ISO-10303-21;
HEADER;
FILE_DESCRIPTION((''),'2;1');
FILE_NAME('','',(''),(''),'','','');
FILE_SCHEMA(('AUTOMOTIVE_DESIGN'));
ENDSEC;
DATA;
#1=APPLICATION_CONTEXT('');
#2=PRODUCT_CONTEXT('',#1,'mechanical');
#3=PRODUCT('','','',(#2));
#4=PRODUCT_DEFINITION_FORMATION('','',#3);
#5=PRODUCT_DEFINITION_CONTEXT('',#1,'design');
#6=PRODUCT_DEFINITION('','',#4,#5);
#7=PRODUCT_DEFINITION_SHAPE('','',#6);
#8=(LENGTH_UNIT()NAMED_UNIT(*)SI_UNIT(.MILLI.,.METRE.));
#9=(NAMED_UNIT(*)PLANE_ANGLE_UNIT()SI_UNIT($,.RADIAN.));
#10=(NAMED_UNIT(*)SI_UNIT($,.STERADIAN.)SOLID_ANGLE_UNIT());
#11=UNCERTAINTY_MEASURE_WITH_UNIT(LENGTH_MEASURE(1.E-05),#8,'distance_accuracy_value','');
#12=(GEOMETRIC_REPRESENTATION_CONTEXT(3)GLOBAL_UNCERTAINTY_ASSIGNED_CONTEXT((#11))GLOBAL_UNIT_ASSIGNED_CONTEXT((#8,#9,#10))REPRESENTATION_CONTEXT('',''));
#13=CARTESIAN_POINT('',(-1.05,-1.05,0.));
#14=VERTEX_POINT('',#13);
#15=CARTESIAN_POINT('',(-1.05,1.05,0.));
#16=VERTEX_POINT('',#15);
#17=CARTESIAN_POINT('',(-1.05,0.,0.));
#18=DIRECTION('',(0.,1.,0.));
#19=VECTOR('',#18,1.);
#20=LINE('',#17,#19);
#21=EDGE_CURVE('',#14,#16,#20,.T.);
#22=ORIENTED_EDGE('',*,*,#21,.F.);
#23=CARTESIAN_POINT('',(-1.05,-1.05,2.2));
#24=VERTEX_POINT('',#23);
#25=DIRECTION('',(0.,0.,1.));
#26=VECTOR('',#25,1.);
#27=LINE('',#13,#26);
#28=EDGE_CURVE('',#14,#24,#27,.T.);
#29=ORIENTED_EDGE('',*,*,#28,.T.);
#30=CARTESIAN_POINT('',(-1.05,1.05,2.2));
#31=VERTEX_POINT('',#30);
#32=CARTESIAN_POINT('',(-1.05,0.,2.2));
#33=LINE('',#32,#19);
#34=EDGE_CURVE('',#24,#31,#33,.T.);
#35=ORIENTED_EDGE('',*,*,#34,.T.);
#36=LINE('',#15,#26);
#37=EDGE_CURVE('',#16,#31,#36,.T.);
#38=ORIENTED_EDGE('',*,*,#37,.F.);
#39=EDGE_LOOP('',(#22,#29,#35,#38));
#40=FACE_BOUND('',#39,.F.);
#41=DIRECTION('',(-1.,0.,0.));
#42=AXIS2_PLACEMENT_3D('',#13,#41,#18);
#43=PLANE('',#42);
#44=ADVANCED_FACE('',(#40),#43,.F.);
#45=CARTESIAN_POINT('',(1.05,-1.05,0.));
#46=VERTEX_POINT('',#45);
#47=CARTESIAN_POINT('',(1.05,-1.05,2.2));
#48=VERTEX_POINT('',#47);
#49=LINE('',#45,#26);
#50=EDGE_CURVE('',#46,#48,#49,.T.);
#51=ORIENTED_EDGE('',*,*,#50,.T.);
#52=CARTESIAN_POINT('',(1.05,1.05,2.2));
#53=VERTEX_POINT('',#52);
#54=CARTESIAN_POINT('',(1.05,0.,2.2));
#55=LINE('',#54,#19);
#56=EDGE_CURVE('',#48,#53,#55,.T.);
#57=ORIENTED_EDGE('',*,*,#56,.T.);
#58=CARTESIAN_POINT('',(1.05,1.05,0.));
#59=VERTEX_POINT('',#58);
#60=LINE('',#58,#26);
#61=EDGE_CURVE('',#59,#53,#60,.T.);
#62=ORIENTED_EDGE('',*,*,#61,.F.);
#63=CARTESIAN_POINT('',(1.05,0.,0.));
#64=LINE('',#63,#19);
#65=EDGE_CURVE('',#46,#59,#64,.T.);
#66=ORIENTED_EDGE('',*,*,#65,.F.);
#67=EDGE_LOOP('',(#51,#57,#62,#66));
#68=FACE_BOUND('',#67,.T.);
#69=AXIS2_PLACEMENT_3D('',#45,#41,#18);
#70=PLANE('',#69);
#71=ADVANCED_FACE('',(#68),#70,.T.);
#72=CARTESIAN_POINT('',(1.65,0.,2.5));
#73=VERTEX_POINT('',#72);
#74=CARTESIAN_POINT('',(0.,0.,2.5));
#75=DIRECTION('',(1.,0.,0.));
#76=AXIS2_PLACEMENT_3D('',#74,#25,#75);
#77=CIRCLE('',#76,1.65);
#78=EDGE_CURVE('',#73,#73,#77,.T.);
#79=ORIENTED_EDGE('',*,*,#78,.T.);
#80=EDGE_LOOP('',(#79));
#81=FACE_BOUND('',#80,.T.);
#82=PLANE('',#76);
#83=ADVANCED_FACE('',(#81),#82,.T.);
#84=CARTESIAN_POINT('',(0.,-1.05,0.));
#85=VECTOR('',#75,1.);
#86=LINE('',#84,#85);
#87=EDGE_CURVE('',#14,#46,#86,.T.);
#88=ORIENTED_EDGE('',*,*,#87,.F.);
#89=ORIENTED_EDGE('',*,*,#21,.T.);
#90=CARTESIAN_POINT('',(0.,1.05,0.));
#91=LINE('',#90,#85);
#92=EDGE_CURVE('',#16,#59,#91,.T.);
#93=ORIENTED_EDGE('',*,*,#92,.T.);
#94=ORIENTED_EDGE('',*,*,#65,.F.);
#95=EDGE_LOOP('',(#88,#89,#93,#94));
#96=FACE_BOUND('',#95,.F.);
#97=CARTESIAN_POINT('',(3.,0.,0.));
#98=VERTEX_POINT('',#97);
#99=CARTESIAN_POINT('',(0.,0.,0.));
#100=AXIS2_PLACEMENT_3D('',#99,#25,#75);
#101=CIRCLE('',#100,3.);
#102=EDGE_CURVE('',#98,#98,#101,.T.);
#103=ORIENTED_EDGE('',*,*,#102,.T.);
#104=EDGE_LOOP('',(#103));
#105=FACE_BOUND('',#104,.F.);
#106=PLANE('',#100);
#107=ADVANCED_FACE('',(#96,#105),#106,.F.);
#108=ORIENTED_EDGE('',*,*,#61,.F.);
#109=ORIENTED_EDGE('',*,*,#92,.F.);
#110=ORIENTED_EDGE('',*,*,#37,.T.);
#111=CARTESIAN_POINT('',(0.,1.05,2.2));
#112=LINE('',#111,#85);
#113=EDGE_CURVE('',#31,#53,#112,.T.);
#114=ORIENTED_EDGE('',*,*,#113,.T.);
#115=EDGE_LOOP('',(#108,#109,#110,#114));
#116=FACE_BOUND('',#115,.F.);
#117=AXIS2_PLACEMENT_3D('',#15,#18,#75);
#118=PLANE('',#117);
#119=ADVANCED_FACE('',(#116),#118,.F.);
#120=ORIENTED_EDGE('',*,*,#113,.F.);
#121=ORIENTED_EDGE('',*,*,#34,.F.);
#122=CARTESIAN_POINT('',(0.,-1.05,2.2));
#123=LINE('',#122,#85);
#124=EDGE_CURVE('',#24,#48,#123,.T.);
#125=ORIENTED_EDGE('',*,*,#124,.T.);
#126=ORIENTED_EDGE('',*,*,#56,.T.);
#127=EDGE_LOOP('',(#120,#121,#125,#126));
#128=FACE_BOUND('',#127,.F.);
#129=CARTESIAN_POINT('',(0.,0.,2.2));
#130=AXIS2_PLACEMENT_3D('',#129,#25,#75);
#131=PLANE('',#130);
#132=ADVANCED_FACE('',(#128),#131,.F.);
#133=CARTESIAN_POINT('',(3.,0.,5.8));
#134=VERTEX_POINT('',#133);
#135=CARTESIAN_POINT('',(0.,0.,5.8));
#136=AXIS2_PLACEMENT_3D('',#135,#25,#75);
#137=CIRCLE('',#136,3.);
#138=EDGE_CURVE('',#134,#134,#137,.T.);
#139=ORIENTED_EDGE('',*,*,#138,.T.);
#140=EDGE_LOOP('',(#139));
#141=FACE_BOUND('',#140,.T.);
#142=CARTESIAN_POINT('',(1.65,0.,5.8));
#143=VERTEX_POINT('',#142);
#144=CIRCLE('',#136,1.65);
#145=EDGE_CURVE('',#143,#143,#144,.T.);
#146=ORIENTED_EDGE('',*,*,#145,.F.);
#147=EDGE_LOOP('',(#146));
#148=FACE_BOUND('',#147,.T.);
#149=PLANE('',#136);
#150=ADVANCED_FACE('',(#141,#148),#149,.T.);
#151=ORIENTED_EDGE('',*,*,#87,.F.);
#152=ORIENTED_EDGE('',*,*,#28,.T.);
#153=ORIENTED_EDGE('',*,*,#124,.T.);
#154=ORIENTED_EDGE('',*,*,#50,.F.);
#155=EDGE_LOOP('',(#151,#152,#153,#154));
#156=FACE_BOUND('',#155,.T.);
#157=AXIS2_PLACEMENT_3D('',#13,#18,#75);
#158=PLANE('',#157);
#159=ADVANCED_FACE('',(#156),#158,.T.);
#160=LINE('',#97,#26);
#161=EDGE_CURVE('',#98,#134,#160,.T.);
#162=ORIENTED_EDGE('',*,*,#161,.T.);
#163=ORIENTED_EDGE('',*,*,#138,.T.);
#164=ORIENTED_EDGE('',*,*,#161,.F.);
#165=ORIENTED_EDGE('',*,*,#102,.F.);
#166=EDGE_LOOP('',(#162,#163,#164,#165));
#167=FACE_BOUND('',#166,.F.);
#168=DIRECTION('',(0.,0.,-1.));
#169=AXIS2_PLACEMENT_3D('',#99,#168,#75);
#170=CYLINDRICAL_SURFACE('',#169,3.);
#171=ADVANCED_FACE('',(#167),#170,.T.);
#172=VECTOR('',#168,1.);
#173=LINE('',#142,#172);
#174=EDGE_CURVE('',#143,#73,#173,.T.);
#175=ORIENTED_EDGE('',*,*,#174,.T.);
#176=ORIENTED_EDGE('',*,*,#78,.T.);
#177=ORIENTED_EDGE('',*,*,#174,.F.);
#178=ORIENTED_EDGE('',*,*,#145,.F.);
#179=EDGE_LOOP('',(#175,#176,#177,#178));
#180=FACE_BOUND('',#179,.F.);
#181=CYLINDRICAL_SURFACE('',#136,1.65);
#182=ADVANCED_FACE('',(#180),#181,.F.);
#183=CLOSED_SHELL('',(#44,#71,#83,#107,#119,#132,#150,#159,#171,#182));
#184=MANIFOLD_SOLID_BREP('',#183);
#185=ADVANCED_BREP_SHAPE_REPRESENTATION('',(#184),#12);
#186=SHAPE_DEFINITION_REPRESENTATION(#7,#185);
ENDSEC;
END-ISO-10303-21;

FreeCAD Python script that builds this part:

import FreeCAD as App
import Part
import Sketcher
from FreeCAD import Vector


def add_polygon(sketch, points):
    """Adds a closed chain of lines whose ends are joined by coincident constraints."""
    first, n = sketch.GeometryCount, len(points)
    for a, b in zip(points, points[1:] + points[:1]):
        sketch.addGeometry(Part.LineSegment(App.Vector(*a, 0), App.Vector(*b, 0)), False)
    for i in range(n):
        sketch.addConstraint(Sketcher.Constraint("Coincident", first + i, 2, first + (i + 1) % n, 1))

doc = App.newDocument("Part")
body = doc.addObject("PartDesign::Body", "Body")

# Sketch on XY plane
sketch1 = body.newObject("Sketcher::SketchObject", "Sketch")
sketch1.AttachmentSupport = (doc.getObject("XY_Plane"), [""])
sketch1.MapMode = "FlatFace"
sketch1.addGeometry(Part.Circle(Vector(0, 0, 0), Vector(0, 0, 1), 3), False)
sketch1.addConstraint([
    Sketcher.Constraint("Coincident", 0, 3, -1, 1),
    Sketcher.Constraint("Diameter", 0, 6.0),
])
pad1 = body.newObject("PartDesign::Pad", "Pad")
pad1.Profile = sketch1
pad1.Length = 5.8

# Sketch on XY plane
sketch2 = body.newObject("Sketcher::SketchObject", "Sketch001")
sketch2.AttachmentSupport = (doc.getObject("XY_Plane"), [""])
sketch2.MapMode = "FlatFace"
add_polygon(sketch2, [(-1.1, 1.1), (-1.1, -1.1), (1.1, -1.1), (1.1, 1.1)])  # lines 0-3
sketch2.addConstraint([
    Sketcher.Constraint("Vertical", 0),
    Sketcher.Constraint("Horizontal", 1),
    Sketcher.Constraint("Vertical", 2),
    Sketcher.Constraint("Horizontal", 3),
    Sketcher.Constraint("Symmetric", 0, 2, 2, 2, -1, 1),
    Sketcher.Constraint("Equal", 3, 0),
    Sketcher.Constraint("DistanceX", 1, 1, 1, 2, 2.1),
])
pocket1 = body.newObject("PartDesign::Pocket", "Pocket")
pocket1.Profile = sketch2
pocket1.Length = 2.2
pocket1.Reversed = True

# Sketch on XY plane
sketch3 = body.newObject("Sketcher::SketchObject", "Sketch002")
sketch3.AttachmentSupport = (doc.getObject("XY_Plane"), [""])
sketch3.MapMode = "FlatFace"
sketch3.AttachmentOffset = App.Placement(Vector(0, 0, 5.8), App.Rotation())
sketch3.addGeometry(Part.Circle(Vector(0, 0, 0), Vector(0, 0, 1), 1.6), False)
sketch3.addConstraint([
    Sketcher.Constraint("Coincident", 0, 3, -1, 1),
    Sketcher.Constraint("Diameter", 0, 3.3),
])
pocket2 = body.newObject("PartDesign::Pocket", "Pocket001")
pocket2.Profile = sketch3
pocket2.Length = 3.3

doc.recompute()
